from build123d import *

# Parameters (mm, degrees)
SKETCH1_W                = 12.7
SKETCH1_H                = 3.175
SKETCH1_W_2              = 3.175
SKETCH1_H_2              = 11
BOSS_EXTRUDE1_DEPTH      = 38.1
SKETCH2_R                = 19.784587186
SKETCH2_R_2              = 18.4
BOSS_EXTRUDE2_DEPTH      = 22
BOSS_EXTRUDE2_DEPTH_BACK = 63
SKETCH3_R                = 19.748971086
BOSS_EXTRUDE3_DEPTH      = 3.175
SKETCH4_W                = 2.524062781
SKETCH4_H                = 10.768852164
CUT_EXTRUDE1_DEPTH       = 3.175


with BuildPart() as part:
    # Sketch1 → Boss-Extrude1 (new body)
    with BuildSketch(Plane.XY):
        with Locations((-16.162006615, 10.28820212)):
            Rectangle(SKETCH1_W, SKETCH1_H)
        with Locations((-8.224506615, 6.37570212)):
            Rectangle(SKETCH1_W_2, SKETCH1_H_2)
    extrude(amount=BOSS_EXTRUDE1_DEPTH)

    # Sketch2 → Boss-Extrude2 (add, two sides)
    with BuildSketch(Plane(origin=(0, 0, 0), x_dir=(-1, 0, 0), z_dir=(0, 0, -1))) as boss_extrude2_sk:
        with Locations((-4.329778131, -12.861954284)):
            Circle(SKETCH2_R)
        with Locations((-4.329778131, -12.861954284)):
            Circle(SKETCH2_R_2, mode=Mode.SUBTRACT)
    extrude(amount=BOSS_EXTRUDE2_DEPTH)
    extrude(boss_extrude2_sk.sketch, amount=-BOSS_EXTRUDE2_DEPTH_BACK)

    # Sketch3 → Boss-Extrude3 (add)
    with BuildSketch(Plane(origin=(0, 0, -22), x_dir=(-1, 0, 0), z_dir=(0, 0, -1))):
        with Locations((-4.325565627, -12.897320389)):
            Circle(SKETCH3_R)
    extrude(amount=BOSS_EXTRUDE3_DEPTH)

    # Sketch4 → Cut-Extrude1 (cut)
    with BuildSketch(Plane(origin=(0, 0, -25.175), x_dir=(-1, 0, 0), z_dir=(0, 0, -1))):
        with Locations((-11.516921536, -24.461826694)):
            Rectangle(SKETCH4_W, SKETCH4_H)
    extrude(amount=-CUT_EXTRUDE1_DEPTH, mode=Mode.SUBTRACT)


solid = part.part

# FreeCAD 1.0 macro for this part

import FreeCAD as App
import Part
import Sketcher
from FreeCAD import Vector
Q = App.Units.Quantity


def add_polygon(sketch, points):
    """Adds a closed chain of lines whose ends are joined by coincident constraints."""
    first, n = sketch.GeometryCount, len(points)
    for a, b in zip(points, points[1:] + points[:1]):
        sketch.addGeometry(Part.LineSegment(App.Vector(*a, 0), App.Vector(*b, 0)), False)
    for i in range(n):
        sketch.addConstraint(Sketcher.Constraint("Coincident", first + i, 2, first + (i + 1) % n, 1))

doc = App.newDocument("Part")
body = doc.addObject("PartDesign::Body", "Body")

# Sketch on XY plane
sketch1 = doc.addObject("Sketcher::SketchObject", "Sketch")
body.addObject(sketch1)
sketch1.AttachmentSupport = (doc.XY_Plane, [""])
sketch1.MapMode = "FlatFace"
add_polygon(sketch1, [(-22.5, 11.9), (-22.5, 8.7), (-9.8, 8.7), (-9.8, 0.9), (-6.6, 0.9), (-6.6, 11.9)])  # lines 0-5
sketch1.addConstraint(Sketcher.Constraint("Vertical", 0))
sketch1.addConstraint(Sketcher.Constraint("Horizontal", 1))
sketch1.addConstraint(Sketcher.Constraint("Vertical", 2))
sketch1.addConstraint(Sketcher.Constraint("Horizontal", 3))
sketch1.addConstraint(Sketcher.Constraint("Vertical", 4))
sketch1.addConstraint(Sketcher.Constraint("Horizontal", 5))
sketch1.addConstraint(Sketcher.Constraint("Equal", 3, 0))
sketch1.addConstraint(Sketcher.Constraint("DistanceX", 1, 1, 1, 2, Q("0.5 in")))
sketch1.addConstraint(Sketcher.Constraint("DistanceX", 3, 1, 3, 2, Q("0.125 in")))
sketch1.addConstraint(Sketcher.Constraint("DistanceY", 2, 2, 2, 1, Q("7.825 mm")))
sketch1.addConstraint(Sketcher.Constraint("DistanceX", 0, 2, -1, 1, Q("22.512007 mm")))
sketch1.addConstraint(Sketcher.Constraint("DistanceY", -1, 1, 0, 2, Q("8.700702 mm")))
pad1 = doc.addObject("PartDesign::Pad", "Pad")
body.addObject(pad1)
pad1.Profile = sketch1
pad1.Length = Q("1.5 in")

# Sketch on XY plane
sketch2 = doc.addObject("Sketcher::SketchObject", "Sketch001")
body.addObject(sketch2)
sketch2.AttachmentSupport = (doc.XY_Plane, [""])
sketch2.MapMode = "FlatFace"
sketch2.addGeometry(Part.Circle(Vector(4, -13, 0), Vector(0, 0, 1), 20), False)
sketch2.addGeometry(Part.Circle(Vector(4, -13, 0), Vector(0, 0, 1), 18), False)
sketch2.addConstraint(Sketcher.Constraint("Coincident", 1, 3, 0, 3))
sketch2.addConstraint(Sketcher.Constraint("Diameter", 1, Q("36.8 mm")))
sketch2.addConstraint(Sketcher.Constraint("Diameter", 0, Q("39.569174 mm")))
sketch2.addConstraint(Sketcher.Constraint("DistanceX", -1, 1, 0, 3, Q("4.329778 mm")))
sketch2.addConstraint(Sketcher.Constraint("DistanceY", 0, 3, -1, 1, Q("12.861954 mm")))
pad2 = doc.addObject("PartDesign::Pad", "Pad001")
body.addObject(pad2)
pad2.Profile = sketch2
pad2.Type = "TwoLengths"
pad2.Length = 22
pad2.Length2 = 63
pad2.Reversed = True

# Sketch on XY plane
sketch3 = doc.addObject("Sketcher::SketchObject", "Sketch002")
body.addObject(sketch3)
sketch3.AttachmentSupport = (doc.XY_Plane, [""])
sketch3.MapMode = "FlatFace"
sketch3.AttachmentOffset = App.Placement(Vector(0, 0, -22), App.Rotation())
sketch3.addGeometry(Part.Circle(Vector(4, -13, 0), Vector(0, 0, 1), 20), False)
sketch3.addConstraint(Sketcher.Constraint("Diameter", 0, Q("39.497942 mm")))
sketch3.addConstraint(Sketcher.Constraint("DistanceY", 0, 3, -1, 1, Q("12.89732 mm")))
sketch3.addConstraint(Sketcher.Constraint("DistanceX", -1, 1, 0, 3, Q("4.325566 mm")))
pad3 = doc.addObject("PartDesign::Pad", "Pad002")
body.addObject(pad3)
pad3.Profile = sketch3
pad3.Length = Q("0.125 in")
pad3.Reversed = True

# Sketch on XY plane
sketch4 = doc.addObject("Sketcher::SketchObject", "Sketch003")
body.addObject(sketch4)
sketch4.AttachmentSupport = (doc.XY_Plane, [""])
sketch4.MapMode = "FlatFace"
sketch4.AttachmentOffset = App.Placement(Vector(0, 0, -25.175), App.Rotation())
add_polygon(sketch4, [(12.8, -19.1), (12.8, -29.8), (10.3, -29.8), (10.3, -19.1)])  # lines 0-3
sketch4.addConstraint(Sketcher.Constraint("Vertical", 0))
sketch4.addConstraint(Sketcher.Constraint("Horizontal", 1))
sketch4.addConstraint(Sketcher.Constraint("Vertical", 2))
sketch4.addConstraint(Sketcher.Constraint("Horizontal", 3))
sketch4.addConstraint(Sketcher.Constraint("DistanceY", 2, 2, -1, 1, Q("19.077401 mm")))
sketch4.addConstraint(Sketcher.Constraint("DistanceX", 1, 2, 1, 1, Q("2.524063 mm")))
sketch4.addConstraint(Sketcher.Constraint("DistanceY", 0, 2, 0, 1, Q("10.768852 mm")))
sketch4.addConstraint(Sketcher.Constraint("DistanceX", -1, 1, 1, 2, Q("10.25489 mm")))
pocket1 = doc.addObject("PartDesign::Pocket", "Pocket")
body.addObject(pocket1)
pocket1.Profile = sketch4
pocket1.Length = Q("0.125 in")
pocket1.Reversed = True

doc.recompute()
